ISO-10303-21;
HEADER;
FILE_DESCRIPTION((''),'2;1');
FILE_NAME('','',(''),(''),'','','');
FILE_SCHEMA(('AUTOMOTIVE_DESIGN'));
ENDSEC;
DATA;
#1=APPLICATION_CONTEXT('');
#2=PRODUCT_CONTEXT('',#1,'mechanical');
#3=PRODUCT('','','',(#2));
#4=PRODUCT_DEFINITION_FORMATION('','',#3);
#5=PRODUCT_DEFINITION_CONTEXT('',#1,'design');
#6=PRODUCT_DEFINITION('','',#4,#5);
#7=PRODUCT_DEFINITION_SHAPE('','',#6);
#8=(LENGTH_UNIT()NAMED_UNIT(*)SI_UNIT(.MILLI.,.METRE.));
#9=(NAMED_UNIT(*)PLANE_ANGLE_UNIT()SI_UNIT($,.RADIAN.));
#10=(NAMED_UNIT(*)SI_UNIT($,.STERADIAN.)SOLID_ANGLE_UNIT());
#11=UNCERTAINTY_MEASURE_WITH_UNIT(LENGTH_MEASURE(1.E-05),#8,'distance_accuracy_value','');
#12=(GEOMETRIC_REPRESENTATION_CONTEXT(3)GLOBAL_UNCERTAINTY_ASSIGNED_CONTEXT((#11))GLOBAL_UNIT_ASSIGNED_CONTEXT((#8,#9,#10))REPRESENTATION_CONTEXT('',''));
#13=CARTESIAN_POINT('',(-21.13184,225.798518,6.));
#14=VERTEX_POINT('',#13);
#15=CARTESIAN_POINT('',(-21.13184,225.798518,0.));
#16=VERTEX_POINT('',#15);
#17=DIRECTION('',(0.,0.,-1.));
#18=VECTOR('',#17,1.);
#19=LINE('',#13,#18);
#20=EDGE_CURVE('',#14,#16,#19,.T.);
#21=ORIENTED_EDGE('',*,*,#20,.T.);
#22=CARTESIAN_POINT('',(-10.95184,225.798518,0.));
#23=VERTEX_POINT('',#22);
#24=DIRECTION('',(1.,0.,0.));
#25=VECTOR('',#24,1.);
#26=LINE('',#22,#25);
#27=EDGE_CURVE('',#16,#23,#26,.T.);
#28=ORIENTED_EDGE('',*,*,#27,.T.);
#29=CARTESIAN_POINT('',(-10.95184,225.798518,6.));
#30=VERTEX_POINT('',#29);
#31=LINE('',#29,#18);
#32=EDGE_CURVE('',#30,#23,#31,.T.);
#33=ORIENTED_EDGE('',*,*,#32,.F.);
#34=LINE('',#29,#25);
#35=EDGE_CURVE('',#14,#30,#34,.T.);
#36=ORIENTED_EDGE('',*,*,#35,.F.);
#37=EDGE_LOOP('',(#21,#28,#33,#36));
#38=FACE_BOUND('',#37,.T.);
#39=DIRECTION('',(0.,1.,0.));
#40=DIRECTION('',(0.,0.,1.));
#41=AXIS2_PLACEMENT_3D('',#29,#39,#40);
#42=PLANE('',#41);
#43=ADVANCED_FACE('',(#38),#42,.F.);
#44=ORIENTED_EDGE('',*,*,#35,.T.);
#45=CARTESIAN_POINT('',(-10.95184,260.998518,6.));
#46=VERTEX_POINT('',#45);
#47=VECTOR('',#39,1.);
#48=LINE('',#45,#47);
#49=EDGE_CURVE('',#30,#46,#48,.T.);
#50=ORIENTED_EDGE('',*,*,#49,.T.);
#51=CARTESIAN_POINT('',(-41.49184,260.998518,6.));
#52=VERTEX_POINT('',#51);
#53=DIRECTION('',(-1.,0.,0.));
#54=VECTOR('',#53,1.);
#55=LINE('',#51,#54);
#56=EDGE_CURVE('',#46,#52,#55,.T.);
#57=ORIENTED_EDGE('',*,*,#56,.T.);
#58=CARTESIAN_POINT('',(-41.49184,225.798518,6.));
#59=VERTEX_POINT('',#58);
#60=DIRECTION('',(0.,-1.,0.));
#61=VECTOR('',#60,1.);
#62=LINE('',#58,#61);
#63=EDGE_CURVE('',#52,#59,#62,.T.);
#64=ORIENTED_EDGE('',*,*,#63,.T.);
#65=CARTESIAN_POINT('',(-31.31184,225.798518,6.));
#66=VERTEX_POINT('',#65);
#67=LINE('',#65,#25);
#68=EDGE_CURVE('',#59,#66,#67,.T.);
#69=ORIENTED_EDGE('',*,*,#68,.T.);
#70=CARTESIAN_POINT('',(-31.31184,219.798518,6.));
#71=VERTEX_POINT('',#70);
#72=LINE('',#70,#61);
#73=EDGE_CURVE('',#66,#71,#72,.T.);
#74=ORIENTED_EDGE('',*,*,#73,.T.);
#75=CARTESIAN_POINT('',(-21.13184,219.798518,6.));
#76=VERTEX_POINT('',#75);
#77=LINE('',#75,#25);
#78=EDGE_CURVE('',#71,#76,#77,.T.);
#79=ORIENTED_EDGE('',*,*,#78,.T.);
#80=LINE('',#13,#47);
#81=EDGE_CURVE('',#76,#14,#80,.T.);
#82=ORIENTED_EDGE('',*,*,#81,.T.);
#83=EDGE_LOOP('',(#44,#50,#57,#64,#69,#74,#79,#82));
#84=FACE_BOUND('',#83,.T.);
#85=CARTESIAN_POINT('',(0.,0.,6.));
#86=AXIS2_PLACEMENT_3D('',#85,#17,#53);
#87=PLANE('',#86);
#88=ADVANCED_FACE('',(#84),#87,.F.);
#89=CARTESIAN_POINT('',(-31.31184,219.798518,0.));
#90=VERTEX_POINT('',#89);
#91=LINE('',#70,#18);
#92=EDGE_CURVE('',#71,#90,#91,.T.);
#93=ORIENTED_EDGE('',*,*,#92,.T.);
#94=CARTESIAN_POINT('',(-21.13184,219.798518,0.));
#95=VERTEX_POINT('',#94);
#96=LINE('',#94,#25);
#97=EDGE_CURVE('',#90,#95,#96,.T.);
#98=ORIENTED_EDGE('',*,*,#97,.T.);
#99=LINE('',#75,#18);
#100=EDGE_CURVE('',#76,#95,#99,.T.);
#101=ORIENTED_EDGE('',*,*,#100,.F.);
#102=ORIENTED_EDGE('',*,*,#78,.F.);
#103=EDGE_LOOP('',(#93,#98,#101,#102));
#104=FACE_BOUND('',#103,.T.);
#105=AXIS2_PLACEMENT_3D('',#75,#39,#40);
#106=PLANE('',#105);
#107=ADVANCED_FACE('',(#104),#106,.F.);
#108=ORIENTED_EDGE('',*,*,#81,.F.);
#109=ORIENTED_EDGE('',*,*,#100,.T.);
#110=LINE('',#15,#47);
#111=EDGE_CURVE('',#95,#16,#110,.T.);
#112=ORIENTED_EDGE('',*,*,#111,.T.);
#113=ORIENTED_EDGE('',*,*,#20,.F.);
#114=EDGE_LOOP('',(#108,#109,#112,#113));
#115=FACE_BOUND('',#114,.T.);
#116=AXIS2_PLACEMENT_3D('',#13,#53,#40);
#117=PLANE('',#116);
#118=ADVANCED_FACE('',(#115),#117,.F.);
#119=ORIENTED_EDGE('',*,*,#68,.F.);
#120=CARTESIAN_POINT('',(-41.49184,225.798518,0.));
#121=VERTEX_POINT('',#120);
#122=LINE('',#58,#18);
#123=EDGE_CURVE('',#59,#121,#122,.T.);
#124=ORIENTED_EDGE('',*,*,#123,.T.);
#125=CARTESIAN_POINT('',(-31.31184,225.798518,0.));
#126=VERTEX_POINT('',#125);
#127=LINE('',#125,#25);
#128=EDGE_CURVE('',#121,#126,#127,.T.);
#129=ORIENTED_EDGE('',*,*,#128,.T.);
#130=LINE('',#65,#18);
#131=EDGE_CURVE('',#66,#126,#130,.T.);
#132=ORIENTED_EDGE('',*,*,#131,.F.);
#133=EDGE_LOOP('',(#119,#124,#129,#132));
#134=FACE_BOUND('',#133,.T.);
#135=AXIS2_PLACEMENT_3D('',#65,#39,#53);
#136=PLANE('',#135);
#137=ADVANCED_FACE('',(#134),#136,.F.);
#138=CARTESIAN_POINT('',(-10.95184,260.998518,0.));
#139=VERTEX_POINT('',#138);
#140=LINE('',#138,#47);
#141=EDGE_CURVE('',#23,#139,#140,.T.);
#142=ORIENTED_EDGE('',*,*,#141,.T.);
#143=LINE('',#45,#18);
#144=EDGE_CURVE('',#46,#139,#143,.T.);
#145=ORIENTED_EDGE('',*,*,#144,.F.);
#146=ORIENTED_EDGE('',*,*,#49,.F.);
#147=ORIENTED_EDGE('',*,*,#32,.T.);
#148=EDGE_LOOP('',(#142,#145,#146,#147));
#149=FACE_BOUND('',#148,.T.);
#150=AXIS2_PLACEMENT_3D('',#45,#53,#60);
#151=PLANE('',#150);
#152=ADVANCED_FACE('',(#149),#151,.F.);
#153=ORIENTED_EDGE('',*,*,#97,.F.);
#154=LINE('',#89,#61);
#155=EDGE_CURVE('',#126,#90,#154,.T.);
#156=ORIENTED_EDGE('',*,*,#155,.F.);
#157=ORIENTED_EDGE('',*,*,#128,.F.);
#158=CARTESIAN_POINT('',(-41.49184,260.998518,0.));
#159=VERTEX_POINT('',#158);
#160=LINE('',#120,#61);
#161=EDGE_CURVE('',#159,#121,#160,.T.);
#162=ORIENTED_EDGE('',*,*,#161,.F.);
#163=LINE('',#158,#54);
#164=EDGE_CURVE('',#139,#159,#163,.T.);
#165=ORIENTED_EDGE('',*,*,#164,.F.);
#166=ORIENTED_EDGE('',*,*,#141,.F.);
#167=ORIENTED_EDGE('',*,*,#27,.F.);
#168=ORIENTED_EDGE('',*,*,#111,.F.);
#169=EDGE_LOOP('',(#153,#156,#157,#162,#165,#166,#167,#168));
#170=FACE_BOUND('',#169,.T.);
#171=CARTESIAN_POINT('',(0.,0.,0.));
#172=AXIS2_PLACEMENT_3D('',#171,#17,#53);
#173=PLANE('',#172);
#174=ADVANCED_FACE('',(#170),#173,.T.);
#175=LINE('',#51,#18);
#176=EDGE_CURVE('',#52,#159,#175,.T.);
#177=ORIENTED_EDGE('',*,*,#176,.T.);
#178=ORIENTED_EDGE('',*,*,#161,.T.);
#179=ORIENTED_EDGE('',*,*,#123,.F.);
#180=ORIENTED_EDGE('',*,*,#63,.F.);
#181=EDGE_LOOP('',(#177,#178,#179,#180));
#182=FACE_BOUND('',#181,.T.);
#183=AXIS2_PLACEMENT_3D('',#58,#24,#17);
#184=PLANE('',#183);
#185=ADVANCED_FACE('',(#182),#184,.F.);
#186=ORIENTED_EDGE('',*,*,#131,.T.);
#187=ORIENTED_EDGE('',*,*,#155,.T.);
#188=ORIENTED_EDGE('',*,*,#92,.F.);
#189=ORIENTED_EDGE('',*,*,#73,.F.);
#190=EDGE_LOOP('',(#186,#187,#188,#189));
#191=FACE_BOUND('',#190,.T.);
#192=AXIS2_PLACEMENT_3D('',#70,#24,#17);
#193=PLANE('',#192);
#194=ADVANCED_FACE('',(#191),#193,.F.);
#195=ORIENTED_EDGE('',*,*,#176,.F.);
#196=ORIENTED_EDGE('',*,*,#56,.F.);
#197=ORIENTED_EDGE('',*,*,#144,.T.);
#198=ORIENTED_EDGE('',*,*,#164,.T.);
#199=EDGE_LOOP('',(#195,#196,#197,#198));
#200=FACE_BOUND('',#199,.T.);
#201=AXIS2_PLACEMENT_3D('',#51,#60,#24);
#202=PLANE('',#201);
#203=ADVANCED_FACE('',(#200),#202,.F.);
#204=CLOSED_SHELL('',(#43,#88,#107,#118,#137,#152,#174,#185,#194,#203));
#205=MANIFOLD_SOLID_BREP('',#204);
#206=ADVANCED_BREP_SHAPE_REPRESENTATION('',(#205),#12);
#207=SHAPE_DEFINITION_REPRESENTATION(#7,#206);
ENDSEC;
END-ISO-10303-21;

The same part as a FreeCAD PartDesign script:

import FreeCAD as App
import Part
import Sketcher

V = App.Vector
Q = App.Units.Quantity

doc = App.newDocument("Part")
params = doc.addObject("Spreadsheet::Sheet", "Params")
for row, (alias, value) in enumerate([
    ("sketch1_height", "6 mm"),
    ("sketch1_height2", "35.2 mm"),
    ("sketch1_width", "30.54 mm"),
    ("pad1_length", "6 mm"),
], start=1):
    params.set(f"A{row}", alias)
    params.set(f"B{row}", "=" + value)
    params.setAlias(f"B{row}", alias)

body = doc.addObject("PartDesign::Body", "Body")

sketch1 = doc.addObject("Sketcher::SketchObject", "Sketch")
body.addObject(sketch1)
sketch1.AttachmentSupport = (doc.XY_Plane, [""])
sketch1.MapMode = "FlatFace"
sketch1.addGeometry([
    Part.LineSegment(V(-11, 261, 0), V(-41, 261, 0)),
    Part.LineSegment(V(-41, 261, 0), V(-41, 226, 0)),
    Part.LineSegment(V(-41, 226, 0), V(-31, 226, 0)),
    Part.LineSegment(V(-31, 226, 0), V(-31, 220, 0)),
    Part.LineSegment(V(-31, 220, 0), V(-21, 220, 0)),
    Part.LineSegment(V(-21, 220, 0), V(-21, 226, 0)),
    Part.LineSegment(V(-21, 226, 0), V(-11, 226, 0)),
    Part.LineSegment(V(-11, 226, 0), V(-11, 261, 0)),
], False)
sketch1.addConstraint([
    Sketcher.Constraint("Coincident", 0, 2, 1, 1),
    Sketcher.Constraint("Coincident", 1, 2, 2, 1),
    Sketcher.Constraint("Coincident", 2, 2, 3, 1),
    Sketcher.Constraint("Coincident", 3, 2, 4, 1),
    Sketcher.Constraint("Coincident", 4, 2, 5, 1),
    Sketcher.Constraint("Coincident", 5, 2, 6, 1),
    Sketcher.Constraint("Coincident", 6, 2, 7, 1),
    Sketcher.Constraint("Coincident", 7, 2, 0, 1),
    Sketcher.Constraint("Horizontal", 0),
    Sketcher.Constraint("Vertical", 1),
    Sketcher.Constraint("Horizontal", 2),
    Sketcher.Constraint("Vertical", 3),
    Sketcher.Constraint("Horizontal", 4),
    Sketcher.Constraint("Vertical", 5),
    Sketcher.Constraint("Horizontal", 6),
    Sketcher.Constraint("Vertical", 7),
    Sketcher.Constraint("Horizontal", 2, 2, 5, 2),
    Sketcher.Constraint("Equal", 2, 4),
    Sketcher.Constraint("Equal", 4, 6),
    Sketcher.Constraint("DistanceY", 3, 2, 3, 1, Q("6 mm")),
    Sketcher.Constraint("DistanceY", 1, 2, 1, 1, Q("35.2 mm")),
    Sketcher.Constraint("DistanceX", 0, 2, 0, 1, Q("30.54 mm")),
    Sketcher.Constraint("DistanceX", 0, 2, -1, 1, Q("41.49184 mm")),
    Sketcher.Constraint("DistanceY", -1, 1, 0, 2, Q("260.998518 mm")),
])
sketch1.setExpression("Constraints[19]", "Params.sketch1_height")
sketch1.setExpression("Constraints[20]", "Params.sketch1_height2")
sketch1.setExpression("Constraints[21]", "Params.sketch1_width")
pad1 = doc.addObject("PartDesign::Pad", "Pad")
body.addObject(pad1)
pad1.Profile = sketch1
pad1.setExpression("Length", "Params.pad1_length")

doc.recompute()
